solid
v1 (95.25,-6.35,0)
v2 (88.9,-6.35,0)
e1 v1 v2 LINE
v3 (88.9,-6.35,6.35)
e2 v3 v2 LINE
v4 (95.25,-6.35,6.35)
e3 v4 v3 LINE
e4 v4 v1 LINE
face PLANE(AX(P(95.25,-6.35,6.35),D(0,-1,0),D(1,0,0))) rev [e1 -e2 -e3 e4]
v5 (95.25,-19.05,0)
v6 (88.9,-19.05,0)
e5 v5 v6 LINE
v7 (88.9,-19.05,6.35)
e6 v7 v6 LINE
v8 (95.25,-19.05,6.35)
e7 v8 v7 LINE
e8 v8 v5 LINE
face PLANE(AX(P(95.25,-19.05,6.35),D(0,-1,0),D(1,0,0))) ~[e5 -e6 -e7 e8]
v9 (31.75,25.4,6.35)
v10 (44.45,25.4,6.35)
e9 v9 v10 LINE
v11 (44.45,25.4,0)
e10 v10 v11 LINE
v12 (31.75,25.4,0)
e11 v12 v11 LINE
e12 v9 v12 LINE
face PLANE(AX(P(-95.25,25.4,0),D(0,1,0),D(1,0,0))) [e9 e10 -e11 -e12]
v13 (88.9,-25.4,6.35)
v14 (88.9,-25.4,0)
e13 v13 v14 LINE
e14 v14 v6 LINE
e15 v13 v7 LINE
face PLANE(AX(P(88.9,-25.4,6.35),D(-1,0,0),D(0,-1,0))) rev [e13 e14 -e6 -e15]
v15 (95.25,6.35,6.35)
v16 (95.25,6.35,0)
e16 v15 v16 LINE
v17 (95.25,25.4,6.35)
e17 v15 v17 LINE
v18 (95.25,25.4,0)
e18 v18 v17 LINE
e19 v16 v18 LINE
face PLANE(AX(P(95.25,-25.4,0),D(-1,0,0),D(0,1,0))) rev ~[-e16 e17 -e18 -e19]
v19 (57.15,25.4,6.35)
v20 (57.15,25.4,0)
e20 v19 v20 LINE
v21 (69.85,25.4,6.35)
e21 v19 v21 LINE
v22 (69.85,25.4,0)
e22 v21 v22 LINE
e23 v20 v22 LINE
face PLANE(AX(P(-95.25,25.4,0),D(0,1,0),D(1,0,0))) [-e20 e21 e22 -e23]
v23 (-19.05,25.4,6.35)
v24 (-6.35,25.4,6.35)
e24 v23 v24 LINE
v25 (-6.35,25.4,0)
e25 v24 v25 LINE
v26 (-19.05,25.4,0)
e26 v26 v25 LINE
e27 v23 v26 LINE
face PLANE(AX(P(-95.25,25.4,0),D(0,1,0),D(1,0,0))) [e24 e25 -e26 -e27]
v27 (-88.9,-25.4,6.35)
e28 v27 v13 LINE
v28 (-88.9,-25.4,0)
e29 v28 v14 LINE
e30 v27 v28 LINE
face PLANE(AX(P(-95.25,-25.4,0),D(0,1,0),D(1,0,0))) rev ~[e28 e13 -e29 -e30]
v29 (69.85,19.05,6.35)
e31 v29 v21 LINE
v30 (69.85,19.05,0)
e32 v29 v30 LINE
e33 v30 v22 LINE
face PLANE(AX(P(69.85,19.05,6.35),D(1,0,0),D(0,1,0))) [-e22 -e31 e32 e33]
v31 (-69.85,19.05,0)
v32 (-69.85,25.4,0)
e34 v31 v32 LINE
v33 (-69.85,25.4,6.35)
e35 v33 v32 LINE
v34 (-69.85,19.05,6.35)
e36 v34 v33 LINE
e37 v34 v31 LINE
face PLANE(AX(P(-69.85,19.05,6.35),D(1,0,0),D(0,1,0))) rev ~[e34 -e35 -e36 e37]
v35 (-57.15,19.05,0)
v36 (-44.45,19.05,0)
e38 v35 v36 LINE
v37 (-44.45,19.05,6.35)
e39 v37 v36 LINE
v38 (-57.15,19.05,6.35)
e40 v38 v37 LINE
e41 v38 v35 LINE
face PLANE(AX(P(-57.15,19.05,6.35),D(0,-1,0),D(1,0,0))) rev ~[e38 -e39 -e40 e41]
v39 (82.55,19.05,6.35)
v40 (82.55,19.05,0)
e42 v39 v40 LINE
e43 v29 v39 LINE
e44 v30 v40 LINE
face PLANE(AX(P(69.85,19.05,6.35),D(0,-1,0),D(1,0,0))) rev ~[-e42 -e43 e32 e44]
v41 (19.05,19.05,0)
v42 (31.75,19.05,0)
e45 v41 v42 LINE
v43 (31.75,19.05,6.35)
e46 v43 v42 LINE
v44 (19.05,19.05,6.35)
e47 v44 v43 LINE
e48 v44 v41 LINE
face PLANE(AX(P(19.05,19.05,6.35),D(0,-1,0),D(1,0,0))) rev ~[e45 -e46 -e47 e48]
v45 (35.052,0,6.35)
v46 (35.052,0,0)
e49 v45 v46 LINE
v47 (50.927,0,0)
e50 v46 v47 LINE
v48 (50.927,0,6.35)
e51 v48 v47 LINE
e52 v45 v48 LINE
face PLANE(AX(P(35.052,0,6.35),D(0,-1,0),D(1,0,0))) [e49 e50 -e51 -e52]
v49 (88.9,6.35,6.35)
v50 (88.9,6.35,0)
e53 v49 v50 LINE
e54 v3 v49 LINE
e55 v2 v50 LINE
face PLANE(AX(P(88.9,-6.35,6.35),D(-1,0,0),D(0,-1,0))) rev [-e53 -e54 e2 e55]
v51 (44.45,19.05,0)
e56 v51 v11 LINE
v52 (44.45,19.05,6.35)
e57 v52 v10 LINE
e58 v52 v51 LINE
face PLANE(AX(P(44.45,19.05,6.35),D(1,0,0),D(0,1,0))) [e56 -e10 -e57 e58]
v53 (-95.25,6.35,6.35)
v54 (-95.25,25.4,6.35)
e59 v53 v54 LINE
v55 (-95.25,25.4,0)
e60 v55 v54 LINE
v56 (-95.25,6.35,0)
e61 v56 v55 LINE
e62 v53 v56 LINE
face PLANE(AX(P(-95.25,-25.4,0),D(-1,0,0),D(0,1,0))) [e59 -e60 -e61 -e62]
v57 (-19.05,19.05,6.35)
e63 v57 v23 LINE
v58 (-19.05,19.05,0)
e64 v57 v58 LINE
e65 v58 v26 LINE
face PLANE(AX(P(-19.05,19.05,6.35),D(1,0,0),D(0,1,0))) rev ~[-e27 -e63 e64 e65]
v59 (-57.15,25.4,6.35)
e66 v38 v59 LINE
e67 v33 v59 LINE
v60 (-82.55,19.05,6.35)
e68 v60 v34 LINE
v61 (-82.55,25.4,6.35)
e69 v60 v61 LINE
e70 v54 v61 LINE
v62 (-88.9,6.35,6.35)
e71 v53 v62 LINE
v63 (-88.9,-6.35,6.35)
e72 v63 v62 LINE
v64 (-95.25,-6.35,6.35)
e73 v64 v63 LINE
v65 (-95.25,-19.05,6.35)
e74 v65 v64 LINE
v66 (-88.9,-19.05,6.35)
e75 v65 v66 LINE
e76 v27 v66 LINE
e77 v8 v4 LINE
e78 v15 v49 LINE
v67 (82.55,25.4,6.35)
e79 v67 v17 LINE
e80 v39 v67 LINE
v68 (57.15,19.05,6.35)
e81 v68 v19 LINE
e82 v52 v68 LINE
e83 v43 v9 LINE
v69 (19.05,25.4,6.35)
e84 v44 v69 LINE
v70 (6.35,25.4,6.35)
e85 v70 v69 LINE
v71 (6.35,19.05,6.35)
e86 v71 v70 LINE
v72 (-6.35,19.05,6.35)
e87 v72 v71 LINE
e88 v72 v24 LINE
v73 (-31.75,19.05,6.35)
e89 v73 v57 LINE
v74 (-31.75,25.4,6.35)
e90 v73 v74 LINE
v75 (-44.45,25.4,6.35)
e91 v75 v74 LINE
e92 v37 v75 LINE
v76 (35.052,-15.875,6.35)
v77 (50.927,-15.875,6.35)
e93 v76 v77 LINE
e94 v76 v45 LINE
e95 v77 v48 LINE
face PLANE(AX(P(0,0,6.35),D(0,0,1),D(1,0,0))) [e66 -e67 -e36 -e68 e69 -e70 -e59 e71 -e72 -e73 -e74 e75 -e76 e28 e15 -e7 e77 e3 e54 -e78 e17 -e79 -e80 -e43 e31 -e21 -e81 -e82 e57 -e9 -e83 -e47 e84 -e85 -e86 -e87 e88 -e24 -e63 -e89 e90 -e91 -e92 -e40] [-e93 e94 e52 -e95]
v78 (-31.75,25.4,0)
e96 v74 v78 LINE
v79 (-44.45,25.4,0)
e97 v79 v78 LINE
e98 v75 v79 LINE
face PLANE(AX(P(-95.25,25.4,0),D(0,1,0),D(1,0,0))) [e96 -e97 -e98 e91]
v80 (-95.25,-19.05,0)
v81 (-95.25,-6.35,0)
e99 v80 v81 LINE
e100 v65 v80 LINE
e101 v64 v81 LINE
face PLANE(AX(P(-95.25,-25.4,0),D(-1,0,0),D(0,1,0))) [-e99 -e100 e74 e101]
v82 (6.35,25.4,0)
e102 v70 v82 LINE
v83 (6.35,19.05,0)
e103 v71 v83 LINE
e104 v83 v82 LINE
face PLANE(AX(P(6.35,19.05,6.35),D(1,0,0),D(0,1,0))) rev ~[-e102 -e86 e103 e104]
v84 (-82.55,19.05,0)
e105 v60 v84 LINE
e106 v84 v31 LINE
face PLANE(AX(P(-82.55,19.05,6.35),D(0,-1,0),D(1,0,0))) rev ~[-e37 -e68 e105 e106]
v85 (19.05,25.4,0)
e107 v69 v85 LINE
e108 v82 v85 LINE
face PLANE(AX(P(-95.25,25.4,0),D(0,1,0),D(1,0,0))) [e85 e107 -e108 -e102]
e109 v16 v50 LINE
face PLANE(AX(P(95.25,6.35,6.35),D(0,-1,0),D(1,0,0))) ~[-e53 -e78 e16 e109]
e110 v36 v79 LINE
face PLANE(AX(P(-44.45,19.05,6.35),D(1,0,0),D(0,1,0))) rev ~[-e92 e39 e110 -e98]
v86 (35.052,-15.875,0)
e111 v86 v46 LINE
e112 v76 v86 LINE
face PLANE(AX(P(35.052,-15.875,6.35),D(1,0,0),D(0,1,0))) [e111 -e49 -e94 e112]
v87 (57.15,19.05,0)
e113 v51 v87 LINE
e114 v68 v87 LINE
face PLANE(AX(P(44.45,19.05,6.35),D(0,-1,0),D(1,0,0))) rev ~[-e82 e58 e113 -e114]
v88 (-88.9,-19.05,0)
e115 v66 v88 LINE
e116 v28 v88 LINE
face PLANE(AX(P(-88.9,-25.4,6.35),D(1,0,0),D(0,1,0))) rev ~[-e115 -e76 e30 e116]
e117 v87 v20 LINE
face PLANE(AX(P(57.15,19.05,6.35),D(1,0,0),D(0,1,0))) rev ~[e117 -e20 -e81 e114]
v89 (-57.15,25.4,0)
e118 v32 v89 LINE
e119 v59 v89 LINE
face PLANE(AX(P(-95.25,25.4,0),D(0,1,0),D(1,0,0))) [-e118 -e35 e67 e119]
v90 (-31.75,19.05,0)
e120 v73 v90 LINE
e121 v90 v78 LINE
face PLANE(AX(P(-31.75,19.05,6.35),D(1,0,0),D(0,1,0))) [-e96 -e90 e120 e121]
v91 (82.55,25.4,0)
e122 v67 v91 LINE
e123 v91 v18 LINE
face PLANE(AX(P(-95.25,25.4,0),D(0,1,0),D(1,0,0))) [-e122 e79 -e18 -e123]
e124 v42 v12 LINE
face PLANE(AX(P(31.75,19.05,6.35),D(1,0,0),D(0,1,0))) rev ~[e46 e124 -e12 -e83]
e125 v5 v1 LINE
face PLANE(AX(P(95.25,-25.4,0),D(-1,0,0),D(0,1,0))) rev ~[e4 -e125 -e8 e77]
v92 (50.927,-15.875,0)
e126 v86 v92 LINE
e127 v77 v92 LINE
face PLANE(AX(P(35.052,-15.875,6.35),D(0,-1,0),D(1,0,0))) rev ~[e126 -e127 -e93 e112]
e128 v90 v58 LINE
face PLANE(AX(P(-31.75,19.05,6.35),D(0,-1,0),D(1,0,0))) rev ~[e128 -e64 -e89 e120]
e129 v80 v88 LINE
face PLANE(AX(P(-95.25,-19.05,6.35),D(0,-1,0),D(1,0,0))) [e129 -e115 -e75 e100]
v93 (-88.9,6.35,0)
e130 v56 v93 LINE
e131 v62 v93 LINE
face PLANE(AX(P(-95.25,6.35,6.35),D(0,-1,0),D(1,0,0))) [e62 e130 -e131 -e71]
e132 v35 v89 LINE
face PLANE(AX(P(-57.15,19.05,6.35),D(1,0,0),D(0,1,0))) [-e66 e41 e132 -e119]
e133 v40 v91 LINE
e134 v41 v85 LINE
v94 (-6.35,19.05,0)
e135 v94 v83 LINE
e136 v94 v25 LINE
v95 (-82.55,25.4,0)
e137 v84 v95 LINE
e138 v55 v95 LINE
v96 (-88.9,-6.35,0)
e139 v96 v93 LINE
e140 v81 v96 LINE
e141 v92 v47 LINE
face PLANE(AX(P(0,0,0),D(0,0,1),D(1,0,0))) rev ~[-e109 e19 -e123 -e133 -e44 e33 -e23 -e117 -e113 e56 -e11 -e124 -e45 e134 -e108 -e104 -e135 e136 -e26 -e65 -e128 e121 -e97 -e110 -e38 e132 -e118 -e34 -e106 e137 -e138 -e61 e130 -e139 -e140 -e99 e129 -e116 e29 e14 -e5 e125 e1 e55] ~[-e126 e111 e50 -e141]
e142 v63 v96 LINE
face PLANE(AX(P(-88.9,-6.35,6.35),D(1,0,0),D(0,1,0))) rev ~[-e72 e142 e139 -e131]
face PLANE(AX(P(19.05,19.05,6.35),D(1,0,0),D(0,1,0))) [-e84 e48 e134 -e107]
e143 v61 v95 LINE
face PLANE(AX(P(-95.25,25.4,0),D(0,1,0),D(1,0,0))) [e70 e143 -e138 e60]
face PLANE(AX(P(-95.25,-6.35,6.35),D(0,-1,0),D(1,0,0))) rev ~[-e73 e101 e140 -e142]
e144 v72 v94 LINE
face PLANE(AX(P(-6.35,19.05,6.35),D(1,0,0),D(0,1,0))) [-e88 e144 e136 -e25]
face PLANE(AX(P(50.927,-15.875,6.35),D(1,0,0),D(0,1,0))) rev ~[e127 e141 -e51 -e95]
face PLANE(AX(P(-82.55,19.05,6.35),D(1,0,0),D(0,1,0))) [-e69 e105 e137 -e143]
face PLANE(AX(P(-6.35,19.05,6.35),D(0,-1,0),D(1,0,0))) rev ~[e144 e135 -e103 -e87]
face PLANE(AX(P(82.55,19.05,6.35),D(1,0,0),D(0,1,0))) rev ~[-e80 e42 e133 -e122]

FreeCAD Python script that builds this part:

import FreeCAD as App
import Part
import Sketcher

V = App.Vector
Q = App.Units.Quantity

doc = App.newDocument("Part")
body = doc.addObject("PartDesign::Body", "Body")

# Sketch on XY plane
sketch1 = body.newObject("Sketcher::SketchObject", "Sketch")
sketch1.AttachmentSupport = (doc.getObject("XY_Plane"), [""])
sketch1.MapMode = "FlatFace"
sketch1.addGeometry([
    Part.LineSegment(V(-95, 25, 0), V(-95, -25, 0)),
    Part.LineSegment(V(-95, -25, 0), V(95, -25, 0)),
    Part.LineSegment(V(95, -25, 0), V(95, 25, 0)),
    Part.LineSegment(V(95, 25, 0), V(-95, 25, 0)),
], False)
sketch1.addConstraint([
    Sketcher.Constraint("Coincident", 0, 2, 1, 1),
    Sketcher.Constraint("Coincident", 1, 2, 2, 1),
    Sketcher.Constraint("Coincident", 2, 2, 3, 1),
    Sketcher.Constraint("Coincident", 3, 2, 0, 1),
    Sketcher.Constraint("Vertical", 0),
    Sketcher.Constraint("Horizontal", 1),
    Sketcher.Constraint("Vertical", 2),
    Sketcher.Constraint("Horizontal", 3),
    Sketcher.Constraint("Symmetric", 0, 2, 2, 2, -1, 1),
    Sketcher.Constraint("DistanceY", 0, 2, 0, 1, Q("2 in")),
    Sketcher.Constraint("DistanceX", 1, 1, 1, 2, Q("7.5 in")),
])
pad1 = body.newObject("PartDesign::Pad", "Pad")
pad1.Profile = sketch1
pad1.Length = Q("0.25 in")

# Sketch on XY plane
sketch2 = body.newObject("Sketcher::SketchObject", "Sketch001")
sketch2.AttachmentSupport = (doc.getObject("XY_Plane"), [""])
sketch2.MapMode = "FlatFace"
sketch2.AttachmentOffset = App.Placement(V(0, 0, 0.25 * 25.4), App.Rotation())
sketch2.addGeometry([
    Part.LineSegment(V(-95, 6, 0), V(-95, -6, 0)),
    Part.LineSegment(V(-95, -6, 0), V(-89, -6, 0)),
    Part.LineSegment(V(-89, -6, 0), V(-89, 6, 0)),
    Part.LineSegment(V(-89, 6, 0), V(-95, 6, 0)),
], False)
sketch2.addConstraint([
    Sketcher.Constraint("Coincident", 0, 2, 1, 1),
    Sketcher.Constraint("Coincident", 1, 2, 2, 1),
    Sketcher.Constraint("Coincident", 2, 2, 3, 1),
    Sketcher.Constraint("Coincident", 3, 2, 0, 1),
    Sketcher.Constraint("Vertical", 0),
    Sketcher.Constraint("Horizontal", 1),
    Sketcher.Constraint("Vertical", 2),
    Sketcher.Constraint("Horizontal", 3),
    Sketcher.Constraint("DistanceY", 0, 2, 0, 1, Q("0.5 in")),
    Sketcher.Constraint("DistanceX", 1, 1, 1, 2, Q("0.25 in")),
    Sketcher.Constraint("DistanceX", 1, 2, -1, 1, Q("3.5 in")),
    Sketcher.Constraint("DistanceY", 0, 2, -1, 1, Q("0.25 in")),
])
pocket1 = body.newObject("PartDesign::Pocket", "Pocket")
pocket1.Profile = sketch2
pocket1.Type = "ThroughAll"

# Sketch on XY plane
sketch3 = body.newObject("Sketcher::SketchObject", "Sketch002")
sketch3.AttachmentSupport = (doc.getObject("XY_Plane"), [""])
sketch3.MapMode = "FlatFace"
sketch3.AttachmentOffset = App.Placement(V(0, 0, 0.25 * 25.4), App.Rotation())
sketch3.addGeometry([
    Part.LineSegment(V(-95, -19, 0), V(-95, -25, 0)),
    Part.LineSegment(V(-95, -25, 0), V(-89, -25, 0)),
    Part.LineSegment(V(-89, -25, 0), V(-89, -19, 0)),
    Part.LineSegment(V(-89, -19, 0), V(-95, -19, 0)),
], False)
sketch3.addConstraint([
    Sketcher.Constraint("Coincident", 0, 2, 1, 1),
    Sketcher.Constraint("Coincident", 1, 2, 2, 1),
    Sketcher.Constraint("Coincident", 2, 2, 3, 1),
    Sketcher.Constraint("Coincident", 3, 2, 0, 1),
    Sketcher.Constraint("Vertical", 0),
    Sketcher.Constraint("Horizontal", 1),
    Sketcher.Constraint("Vertical", 2),
    Sketcher.Constraint("Horizontal", 3),
    Sketcher.Constraint("Equal", 3, 0),
    Sketcher.Constraint("DistanceY", 0, 2, -1, 1, Q("1 in")),
    Sketcher.Constraint("DistanceX", 1, 1, 1, 2, Q("0.25 in")),
    Sketcher.Constraint("DistanceX", 1, 2, -1, 1, Q("3.5 in")),
])
pocket2 = body.newObject("PartDesign::Pocket", "Pocket001")
pocket2.Profile = sketch3
pocket2.Type = "ThroughAll"
doc.recompute()

mirrored = body.newObject("PartDesign::Mirrored", "Mirrored")
mirrored.Originals = [pocket2]
mirrored.MirrorPlane = (doc.getObject("YZ_Plane"), [""])
body.Tip = mirrored
doc.recompute()

mirrored2 = body.newObject("PartDesign::Mirrored", "Mirrored001")
mirrored2.Originals = [pocket1]
mirrored2.MirrorPlane = (doc.getObject("YZ_Plane"), [""])
body.Tip = mirrored2

# Sketch on XY plane
sketch4 = body.newObject("Sketcher::SketchObject", "Sketch003")
sketch4.AttachmentSupport = (doc.getObject("XY_Plane"), [""])
sketch4.MapMode = "FlatFace"
sketch4.AttachmentOffset = App.Placement(V(0, 0, 0.25 * 25.4), App.Rotation())
sketch4.addGeometry([
    Part.LineSegment(V(-83, 25, 0), V(-83, 19, 0)),
    Part.LineSegment(V(-83, 19, 0), V(-70, 19, 0)),
    Part.LineSegment(V(-70, 19, 0), V(-70, 25, 0)),
    Part.LineSegment(V(-70, 25, 0), V(-83, 25, 0)),
], False)
sketch4.addConstraint([
    Sketcher.Constraint("Coincident", 0, 2, 1, 1),
    Sketcher.Constraint("Coincident", 1, 2, 2, 1),
    Sketcher.Constraint("Coincident", 2, 2, 3, 1),
    Sketcher.Constraint("Coincident", 3, 2, 0, 1),
    Sketcher.Constraint("Vertical", 0),
    Sketcher.Constraint("Horizontal", 1),
    Sketcher.Constraint("Vertical", 2),
    Sketcher.Constraint("Horizontal", 3),
    Sketcher.Constraint("DistanceX", 1, 1, 1, 2, Q("0.5 in")),
    Sketcher.Constraint("DistanceY", -1, 1, 2, 2, Q("1 in")),
    Sketcher.Constraint("DistanceY", 0, 2, 0, 1, Q("0.25 in")),
    Sketcher.Constraint("DistanceX", 0, 2, -1, 1, Q("3.25 in")),
])
pocket3 = body.newObject("PartDesign::Pocket", "Pocket002")
pocket3.Profile = sketch4
pocket3.Type = "ThroughAll"
doc.recompute()

linearpattern = body.newObject("PartDesign::LinearPattern", "LinearPattern")
linearpattern.Originals = [pocket3]
linearpattern.Direction = (doc.getObject("X_Axis"), [""])
linearpattern.Mode = "offset"
linearpattern.Offset = Q("1 in")
linearpattern.Occurrences = 7
body.Tip = linearpattern

# Sketch on XY plane
sketch5 = body.newObject("Sketcher::SketchObject", "Sketch004")
sketch5.AttachmentSupport = (doc.getObject("XY_Plane"), [""])
sketch5.MapMode = "FlatFace"
sketch5.AttachmentOffset = App.Placement(V(0, 0, 0.25 * 25.4), App.Rotation())
sketch5.addGeometry([
    Part.LineSegment(V(35, 0, 0), V(35, -16, 0)),
    Part.LineSegment(V(35, -16, 0), V(51, -16, 0)),
    Part.LineSegment(V(51, -16, 0), V(51, 0, 0)),
    Part.LineSegment(V(51, 0, 0), V(35, 0, 0)),
], False)
sketch5.addConstraint([
    Sketcher.Constraint("Coincident", 0, 2, 1, 1),
    Sketcher.Constraint("Coincident", 1, 2, 2, 1),
    Sketcher.Constraint("Coincident", 2, 2, 3, 1),
    Sketcher.Constraint("Coincident", 3, 2, 0, 1),
    Sketcher.Constraint("Vertical", 0),
    Sketcher.Constraint("Horizontal", 1),
    Sketcher.Constraint("Vertical", 2),
    Sketcher.Constraint("Horizontal", 3),
    Sketcher.Constraint("PointOnObject", 2, 2, -1),
    Sketcher.Constraint("Equal", 3, 0),
    Sketcher.Constraint("DistanceX", 1, 1, 1, 2, Q("0.625 in")),
    Sketcher.Constraint("DistanceX", -1, 1, 0, 2, Q("1.38 in")),
])
pocket4 = body.newObject("PartDesign::Pocket", "Pocket003")
pocket4.Profile = sketch5
pocket4.Type = "ThroughAll"

doc.recompute()
